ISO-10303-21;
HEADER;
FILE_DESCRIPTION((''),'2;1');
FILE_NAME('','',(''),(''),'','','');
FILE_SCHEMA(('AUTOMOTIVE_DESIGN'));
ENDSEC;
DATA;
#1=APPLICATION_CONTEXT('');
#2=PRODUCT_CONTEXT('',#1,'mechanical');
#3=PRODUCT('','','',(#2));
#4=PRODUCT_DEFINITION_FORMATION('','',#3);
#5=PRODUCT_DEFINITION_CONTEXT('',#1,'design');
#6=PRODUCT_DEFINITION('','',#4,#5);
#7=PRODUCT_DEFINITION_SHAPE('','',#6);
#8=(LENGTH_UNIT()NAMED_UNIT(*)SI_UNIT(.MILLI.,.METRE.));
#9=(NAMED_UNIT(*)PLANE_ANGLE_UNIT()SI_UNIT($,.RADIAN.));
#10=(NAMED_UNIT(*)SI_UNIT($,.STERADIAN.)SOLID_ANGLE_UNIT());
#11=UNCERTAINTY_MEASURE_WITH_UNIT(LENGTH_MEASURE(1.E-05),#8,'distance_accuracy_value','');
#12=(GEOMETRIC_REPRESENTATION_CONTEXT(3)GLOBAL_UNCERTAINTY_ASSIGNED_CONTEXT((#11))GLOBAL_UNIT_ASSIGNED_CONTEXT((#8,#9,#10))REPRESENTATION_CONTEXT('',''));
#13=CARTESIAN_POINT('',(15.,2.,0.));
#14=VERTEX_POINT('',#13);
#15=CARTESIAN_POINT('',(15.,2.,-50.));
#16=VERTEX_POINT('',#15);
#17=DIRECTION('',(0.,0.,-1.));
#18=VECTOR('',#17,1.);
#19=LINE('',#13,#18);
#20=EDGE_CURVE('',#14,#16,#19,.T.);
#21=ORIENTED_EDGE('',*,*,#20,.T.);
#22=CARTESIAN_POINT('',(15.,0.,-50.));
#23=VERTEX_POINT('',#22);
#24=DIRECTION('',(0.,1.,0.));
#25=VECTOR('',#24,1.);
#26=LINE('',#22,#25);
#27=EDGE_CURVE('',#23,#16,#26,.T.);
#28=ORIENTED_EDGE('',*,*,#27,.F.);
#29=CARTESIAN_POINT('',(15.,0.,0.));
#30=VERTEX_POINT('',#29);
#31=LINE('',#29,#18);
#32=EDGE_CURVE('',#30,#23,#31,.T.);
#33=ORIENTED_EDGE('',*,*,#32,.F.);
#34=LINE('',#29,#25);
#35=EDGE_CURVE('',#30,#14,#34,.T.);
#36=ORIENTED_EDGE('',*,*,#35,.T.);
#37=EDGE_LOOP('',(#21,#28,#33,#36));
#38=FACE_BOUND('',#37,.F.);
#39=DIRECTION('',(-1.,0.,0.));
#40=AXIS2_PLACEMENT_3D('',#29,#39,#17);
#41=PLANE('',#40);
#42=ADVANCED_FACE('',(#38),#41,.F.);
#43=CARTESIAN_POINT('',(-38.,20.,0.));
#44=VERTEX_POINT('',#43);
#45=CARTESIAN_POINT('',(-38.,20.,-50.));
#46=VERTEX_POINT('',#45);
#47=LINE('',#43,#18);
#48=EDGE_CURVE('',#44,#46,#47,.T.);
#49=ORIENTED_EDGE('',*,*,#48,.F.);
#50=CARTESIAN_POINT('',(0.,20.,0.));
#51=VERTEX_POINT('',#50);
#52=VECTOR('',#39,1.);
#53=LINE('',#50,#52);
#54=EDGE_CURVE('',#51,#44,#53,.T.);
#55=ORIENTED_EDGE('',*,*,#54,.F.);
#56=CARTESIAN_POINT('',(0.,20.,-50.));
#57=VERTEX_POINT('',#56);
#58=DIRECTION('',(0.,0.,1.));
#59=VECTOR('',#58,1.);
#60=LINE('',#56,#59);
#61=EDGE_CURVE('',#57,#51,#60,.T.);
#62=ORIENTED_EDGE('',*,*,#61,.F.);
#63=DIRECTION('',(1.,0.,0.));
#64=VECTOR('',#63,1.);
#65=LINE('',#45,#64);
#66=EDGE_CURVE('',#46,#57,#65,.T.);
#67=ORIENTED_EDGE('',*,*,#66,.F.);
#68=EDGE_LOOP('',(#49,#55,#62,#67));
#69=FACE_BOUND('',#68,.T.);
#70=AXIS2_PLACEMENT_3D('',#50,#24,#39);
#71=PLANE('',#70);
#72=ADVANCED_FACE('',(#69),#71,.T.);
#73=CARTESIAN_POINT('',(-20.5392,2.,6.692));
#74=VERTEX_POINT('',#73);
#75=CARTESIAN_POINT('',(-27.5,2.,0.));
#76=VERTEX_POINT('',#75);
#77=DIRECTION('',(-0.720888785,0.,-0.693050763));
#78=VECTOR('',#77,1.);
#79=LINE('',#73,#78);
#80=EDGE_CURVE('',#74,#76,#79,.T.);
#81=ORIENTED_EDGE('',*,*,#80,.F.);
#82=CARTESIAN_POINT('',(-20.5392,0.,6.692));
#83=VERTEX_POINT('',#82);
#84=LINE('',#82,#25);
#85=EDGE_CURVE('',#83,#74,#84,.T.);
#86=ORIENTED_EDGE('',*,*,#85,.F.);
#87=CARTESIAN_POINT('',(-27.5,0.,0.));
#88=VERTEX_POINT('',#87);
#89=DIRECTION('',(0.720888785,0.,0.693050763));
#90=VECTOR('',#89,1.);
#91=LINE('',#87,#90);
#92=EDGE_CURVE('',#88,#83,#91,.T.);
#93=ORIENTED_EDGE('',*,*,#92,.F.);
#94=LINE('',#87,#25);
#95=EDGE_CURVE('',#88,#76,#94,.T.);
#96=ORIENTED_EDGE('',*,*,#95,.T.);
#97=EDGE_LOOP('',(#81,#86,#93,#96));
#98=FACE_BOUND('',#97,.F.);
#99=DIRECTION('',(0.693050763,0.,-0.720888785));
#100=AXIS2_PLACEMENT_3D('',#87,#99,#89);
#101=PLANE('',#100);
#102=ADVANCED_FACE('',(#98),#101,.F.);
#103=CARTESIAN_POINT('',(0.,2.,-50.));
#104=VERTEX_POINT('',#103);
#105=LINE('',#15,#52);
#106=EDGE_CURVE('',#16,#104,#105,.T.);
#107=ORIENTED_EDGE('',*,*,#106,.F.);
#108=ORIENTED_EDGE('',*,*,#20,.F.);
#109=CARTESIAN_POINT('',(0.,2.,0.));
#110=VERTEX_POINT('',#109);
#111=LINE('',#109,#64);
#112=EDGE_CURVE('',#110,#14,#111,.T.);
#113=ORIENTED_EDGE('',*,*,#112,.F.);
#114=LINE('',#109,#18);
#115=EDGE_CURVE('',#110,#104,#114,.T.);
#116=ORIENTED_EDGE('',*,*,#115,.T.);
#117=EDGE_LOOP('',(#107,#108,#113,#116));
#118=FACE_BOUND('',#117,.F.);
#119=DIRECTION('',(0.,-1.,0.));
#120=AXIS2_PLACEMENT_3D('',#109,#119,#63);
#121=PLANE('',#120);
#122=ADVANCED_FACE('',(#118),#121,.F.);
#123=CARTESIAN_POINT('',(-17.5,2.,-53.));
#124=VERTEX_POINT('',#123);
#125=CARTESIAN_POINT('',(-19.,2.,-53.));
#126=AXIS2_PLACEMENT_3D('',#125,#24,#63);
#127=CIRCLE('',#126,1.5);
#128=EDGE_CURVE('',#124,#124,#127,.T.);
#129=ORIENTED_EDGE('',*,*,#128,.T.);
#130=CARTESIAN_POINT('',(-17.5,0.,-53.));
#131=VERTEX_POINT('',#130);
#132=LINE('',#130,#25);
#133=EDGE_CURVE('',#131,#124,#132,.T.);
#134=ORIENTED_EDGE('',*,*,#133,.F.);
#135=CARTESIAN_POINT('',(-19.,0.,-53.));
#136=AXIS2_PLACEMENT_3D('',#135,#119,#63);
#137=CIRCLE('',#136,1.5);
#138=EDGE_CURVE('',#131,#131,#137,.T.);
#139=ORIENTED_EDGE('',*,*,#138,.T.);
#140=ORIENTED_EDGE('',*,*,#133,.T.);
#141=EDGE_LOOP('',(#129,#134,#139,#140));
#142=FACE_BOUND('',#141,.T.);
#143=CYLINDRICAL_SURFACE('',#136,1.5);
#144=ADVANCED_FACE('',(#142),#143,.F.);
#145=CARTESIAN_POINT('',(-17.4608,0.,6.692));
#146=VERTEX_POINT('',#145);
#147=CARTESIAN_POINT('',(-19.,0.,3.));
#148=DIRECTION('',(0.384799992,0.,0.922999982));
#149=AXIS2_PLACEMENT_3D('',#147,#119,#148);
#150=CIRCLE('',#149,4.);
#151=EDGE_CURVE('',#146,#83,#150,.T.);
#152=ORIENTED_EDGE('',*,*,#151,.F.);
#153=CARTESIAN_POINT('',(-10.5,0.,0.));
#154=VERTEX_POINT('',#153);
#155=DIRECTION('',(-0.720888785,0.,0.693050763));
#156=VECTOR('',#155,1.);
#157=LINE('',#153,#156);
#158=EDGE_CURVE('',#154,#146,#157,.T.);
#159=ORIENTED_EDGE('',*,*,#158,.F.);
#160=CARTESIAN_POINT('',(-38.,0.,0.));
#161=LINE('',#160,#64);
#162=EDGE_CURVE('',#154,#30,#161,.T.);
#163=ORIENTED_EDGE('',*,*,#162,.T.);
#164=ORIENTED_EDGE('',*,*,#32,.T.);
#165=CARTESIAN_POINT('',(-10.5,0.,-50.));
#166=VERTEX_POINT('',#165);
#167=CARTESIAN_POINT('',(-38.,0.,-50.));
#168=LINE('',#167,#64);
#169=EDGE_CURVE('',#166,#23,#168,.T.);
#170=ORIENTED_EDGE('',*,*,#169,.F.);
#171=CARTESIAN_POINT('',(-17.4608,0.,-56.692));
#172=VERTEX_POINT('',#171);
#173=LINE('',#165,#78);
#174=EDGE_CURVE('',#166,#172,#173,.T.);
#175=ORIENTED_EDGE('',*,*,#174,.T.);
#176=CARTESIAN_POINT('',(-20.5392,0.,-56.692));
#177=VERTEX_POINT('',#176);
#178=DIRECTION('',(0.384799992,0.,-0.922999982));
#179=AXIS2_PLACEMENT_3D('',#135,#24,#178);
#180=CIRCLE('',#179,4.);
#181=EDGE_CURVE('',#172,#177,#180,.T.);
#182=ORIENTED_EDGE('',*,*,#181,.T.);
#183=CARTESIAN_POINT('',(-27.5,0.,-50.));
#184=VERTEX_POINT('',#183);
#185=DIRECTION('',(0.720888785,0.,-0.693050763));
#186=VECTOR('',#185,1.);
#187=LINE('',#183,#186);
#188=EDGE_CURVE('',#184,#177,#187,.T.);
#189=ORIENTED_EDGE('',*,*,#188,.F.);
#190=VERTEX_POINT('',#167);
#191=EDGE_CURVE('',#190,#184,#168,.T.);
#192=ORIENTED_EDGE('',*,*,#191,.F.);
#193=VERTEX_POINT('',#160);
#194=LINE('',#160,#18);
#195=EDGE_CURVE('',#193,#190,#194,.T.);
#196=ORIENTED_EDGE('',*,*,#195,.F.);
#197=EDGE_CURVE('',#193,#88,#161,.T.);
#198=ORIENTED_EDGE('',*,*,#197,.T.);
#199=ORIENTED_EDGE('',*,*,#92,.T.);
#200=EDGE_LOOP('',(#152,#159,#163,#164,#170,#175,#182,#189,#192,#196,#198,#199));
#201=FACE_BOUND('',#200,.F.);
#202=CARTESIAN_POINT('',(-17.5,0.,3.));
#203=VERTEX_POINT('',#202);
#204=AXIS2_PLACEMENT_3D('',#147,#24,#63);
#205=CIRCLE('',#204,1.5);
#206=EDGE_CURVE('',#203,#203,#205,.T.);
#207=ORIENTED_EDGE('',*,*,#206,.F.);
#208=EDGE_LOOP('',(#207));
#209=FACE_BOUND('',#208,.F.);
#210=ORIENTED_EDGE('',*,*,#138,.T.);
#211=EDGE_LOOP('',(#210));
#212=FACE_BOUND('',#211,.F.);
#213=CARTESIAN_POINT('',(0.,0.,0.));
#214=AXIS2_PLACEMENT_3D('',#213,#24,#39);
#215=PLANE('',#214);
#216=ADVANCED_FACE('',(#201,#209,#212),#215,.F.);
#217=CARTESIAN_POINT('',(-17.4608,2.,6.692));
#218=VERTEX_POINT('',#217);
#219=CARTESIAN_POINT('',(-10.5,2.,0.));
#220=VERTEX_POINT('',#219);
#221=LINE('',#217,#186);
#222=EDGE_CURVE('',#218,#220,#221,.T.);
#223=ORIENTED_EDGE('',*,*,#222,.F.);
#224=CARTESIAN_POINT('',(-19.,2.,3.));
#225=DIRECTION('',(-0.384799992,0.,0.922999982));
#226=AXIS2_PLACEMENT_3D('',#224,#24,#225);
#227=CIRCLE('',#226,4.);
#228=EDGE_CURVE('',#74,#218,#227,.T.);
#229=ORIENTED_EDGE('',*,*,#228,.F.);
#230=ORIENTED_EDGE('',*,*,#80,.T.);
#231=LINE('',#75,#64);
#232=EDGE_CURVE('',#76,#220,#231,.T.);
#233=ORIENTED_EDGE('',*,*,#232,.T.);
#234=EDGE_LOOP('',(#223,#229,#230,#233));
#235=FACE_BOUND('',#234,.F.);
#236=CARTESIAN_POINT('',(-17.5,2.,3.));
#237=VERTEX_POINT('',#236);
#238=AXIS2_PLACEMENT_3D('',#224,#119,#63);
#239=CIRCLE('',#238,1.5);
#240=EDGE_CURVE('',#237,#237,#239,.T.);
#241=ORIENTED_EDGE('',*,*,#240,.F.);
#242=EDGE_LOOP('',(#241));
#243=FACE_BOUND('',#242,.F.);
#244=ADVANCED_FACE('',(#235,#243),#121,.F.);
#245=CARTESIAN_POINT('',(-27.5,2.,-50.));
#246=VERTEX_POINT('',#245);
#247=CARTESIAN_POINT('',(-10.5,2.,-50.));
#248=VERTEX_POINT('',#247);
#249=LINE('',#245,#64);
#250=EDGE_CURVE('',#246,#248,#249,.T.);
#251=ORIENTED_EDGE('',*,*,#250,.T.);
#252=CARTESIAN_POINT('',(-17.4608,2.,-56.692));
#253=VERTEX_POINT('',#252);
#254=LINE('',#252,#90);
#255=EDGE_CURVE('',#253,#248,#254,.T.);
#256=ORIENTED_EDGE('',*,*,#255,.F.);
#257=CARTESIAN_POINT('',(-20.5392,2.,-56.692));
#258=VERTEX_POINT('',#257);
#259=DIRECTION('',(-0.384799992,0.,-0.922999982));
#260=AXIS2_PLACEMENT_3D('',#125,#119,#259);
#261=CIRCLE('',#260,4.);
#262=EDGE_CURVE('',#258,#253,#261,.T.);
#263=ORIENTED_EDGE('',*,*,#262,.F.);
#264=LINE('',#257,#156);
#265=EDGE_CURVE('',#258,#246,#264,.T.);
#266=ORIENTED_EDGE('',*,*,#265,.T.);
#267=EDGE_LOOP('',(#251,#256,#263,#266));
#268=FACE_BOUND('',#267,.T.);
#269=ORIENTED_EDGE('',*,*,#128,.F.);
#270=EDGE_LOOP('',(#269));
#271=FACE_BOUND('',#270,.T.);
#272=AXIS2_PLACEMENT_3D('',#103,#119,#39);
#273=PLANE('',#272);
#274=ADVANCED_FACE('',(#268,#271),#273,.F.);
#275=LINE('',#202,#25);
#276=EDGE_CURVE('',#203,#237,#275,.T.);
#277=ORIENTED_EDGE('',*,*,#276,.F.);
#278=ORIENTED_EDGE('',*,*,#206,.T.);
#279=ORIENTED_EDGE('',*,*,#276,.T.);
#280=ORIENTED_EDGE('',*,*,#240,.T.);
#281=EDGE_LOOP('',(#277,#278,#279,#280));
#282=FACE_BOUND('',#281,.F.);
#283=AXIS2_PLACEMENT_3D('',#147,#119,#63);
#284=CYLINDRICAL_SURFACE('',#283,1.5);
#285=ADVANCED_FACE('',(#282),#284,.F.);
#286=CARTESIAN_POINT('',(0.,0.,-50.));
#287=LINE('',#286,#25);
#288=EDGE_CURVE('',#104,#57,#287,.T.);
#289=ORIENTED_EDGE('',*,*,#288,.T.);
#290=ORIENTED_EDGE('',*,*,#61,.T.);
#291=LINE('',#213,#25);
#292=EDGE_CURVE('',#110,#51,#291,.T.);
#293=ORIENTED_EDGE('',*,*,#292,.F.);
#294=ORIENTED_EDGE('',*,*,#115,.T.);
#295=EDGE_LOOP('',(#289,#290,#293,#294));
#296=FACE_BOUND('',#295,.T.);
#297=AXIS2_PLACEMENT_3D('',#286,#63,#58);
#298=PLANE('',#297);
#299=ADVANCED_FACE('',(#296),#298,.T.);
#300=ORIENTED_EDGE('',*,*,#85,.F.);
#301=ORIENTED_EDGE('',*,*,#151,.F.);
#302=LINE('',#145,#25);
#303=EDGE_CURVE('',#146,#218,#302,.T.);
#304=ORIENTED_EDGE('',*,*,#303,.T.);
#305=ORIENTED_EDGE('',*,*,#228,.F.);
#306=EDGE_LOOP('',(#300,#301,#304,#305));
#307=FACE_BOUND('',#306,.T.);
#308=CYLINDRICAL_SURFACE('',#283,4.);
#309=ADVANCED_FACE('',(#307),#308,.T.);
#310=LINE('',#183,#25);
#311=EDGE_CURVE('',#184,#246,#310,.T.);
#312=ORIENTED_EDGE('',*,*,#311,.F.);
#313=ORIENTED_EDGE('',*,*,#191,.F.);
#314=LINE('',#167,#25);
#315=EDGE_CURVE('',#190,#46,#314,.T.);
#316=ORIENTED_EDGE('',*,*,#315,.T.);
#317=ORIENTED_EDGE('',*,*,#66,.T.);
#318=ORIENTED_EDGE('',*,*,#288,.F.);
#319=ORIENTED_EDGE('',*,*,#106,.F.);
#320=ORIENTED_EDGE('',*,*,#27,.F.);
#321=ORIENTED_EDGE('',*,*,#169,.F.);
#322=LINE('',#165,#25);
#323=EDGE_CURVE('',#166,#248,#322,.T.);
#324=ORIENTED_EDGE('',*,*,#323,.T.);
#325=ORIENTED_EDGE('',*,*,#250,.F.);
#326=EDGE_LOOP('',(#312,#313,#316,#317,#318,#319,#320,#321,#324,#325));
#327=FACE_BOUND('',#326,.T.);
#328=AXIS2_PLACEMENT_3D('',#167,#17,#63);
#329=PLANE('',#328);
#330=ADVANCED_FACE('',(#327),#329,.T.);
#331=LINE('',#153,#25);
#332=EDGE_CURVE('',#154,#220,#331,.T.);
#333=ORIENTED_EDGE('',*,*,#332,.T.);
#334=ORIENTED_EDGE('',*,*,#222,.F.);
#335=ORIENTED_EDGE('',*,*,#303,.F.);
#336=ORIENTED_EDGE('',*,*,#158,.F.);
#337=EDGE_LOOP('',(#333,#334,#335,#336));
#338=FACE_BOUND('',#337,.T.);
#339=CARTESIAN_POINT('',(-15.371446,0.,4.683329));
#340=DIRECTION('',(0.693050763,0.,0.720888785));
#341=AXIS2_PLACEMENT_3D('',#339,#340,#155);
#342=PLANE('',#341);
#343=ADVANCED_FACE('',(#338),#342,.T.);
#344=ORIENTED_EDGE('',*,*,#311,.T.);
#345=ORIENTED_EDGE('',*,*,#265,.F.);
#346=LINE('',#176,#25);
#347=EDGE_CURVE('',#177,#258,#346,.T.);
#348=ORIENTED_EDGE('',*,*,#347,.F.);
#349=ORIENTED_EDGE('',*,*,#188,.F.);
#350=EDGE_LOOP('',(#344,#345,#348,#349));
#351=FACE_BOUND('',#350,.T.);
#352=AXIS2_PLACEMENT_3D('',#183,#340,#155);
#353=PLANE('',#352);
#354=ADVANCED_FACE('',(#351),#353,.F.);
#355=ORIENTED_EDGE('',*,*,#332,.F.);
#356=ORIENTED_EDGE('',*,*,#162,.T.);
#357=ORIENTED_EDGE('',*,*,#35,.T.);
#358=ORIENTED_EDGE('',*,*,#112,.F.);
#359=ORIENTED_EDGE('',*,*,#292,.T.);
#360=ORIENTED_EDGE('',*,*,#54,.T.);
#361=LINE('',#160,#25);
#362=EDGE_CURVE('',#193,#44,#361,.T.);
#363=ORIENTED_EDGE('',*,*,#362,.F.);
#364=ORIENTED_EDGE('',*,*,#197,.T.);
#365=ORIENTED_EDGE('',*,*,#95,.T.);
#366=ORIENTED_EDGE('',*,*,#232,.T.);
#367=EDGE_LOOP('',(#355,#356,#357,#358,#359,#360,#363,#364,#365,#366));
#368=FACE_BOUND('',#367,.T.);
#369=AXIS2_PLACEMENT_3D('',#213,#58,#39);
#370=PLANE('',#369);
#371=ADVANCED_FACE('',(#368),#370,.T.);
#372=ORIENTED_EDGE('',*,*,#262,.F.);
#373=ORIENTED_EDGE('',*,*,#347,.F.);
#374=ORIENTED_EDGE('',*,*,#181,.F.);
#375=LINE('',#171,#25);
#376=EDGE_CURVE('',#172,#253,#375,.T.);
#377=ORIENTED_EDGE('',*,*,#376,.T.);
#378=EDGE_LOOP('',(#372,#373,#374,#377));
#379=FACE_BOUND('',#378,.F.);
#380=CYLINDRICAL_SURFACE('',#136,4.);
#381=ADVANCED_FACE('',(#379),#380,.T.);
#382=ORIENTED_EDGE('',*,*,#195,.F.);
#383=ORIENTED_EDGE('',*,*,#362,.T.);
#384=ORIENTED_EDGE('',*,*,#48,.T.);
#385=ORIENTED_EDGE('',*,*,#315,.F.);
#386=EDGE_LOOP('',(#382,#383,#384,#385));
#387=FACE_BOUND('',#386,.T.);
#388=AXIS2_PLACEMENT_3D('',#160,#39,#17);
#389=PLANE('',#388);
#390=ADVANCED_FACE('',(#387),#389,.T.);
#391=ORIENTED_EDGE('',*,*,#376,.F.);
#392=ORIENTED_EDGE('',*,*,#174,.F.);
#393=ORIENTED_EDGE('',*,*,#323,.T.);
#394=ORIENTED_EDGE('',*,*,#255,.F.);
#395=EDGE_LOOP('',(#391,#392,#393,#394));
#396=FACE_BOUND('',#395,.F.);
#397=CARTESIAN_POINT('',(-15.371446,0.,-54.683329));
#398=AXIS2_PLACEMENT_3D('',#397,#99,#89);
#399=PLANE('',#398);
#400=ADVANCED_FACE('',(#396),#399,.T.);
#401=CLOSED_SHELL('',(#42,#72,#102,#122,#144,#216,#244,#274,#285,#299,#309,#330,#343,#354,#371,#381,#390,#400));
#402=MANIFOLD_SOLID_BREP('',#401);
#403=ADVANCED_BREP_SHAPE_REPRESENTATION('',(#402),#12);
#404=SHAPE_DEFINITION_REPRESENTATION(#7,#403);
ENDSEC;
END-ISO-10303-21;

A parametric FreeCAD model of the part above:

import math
import FreeCAD as App
import Part
import Sketcher
from FreeCAD import Vector


def add_polygon(sketch, points):
    """Adds a closed chain of lines whose ends are joined by coincident constraints."""
    first, n = sketch.GeometryCount, len(points)
    for a, b in zip(points, points[1:] + points[:1]):
        sketch.addGeometry(Part.LineSegment(App.Vector(*a, 0), App.Vector(*b, 0)), False)
    for i in range(n):
        sketch.addConstraint(Sketcher.Constraint("Coincident", first + i, 2, first + (i + 1) % n, 1))

doc = App.newDocument("Part")
params = doc.addObject("Spreadsheet::Sheet", "Params")
for row, (alias, value) in enumerate([
    ("sketch1_width", "38 mm"),
    ("sketch1_height", "50 mm"),
    ("pad1_length", "20 mm"),
    ("sketch2_width", "15 mm"),
    ("sketch2_height", "50 mm"),
    ("pad2_length", "2 mm"),
    ("sketch3_diameter", "3 mm"),
    ("sketch3_radius", "4 mm"),
    ("pad3_length", "2 mm"),
], start=1):
    params.set(f"A{row}", alias)
    params.set(f"B{row}", "=" + value)
    params.setAlias(f"B{row}", alias)

body = doc.addObject("PartDesign::Body", "Body")

# Sketch on XZ plane
sketch1 = doc.addObject("Sketcher::SketchObject", "Sketch")
body.addObject(sketch1)
sketch1.AttachmentSupport = (doc.XZ_Plane, [""])
sketch1.MapMode = "FlatFace"
add_polygon(sketch1, [(-38, 0), (0, 0), (0, -50), (-38, -50)])  # lines 0-3
sketch1.addConstraint(Sketcher.Constraint("Horizontal", 0))
sketch1.addConstraint(Sketcher.Constraint("Vertical", 1))
sketch1.addConstraint(Sketcher.Constraint("Horizontal", 2))
sketch1.addConstraint(Sketcher.Constraint("Vertical", 3))
sketch1.addConstraint(Sketcher.Constraint("Coincident", 0, 2, -1, 1))
sketch1.addConstraint(Sketcher.Constraint("DistanceX", 0, 1, 0, 2, 38.0))
sketch1.addConstraint(Sketcher.Constraint("DistanceY", 1, 2, 1, 1, 50.0))
sketch1.setExpression("Constraints[9]", "Params.sketch1_width")
sketch1.setExpression("Constraints[10]", "Params.sketch1_height")
pad1 = doc.addObject("PartDesign::Pad", "Pad")
body.addObject(pad1)
pad1.Profile = sketch1
pad1.setExpression("Length", "Params.pad1_length")
pad1.Reversed = True

# Sketch on XZ plane
sketch2 = doc.addObject("Sketcher::SketchObject", "Sketch001")
body.addObject(sketch2)
sketch2.AttachmentSupport = (doc.XZ_Plane, [""])
sketch2.MapMode = "FlatFace"
add_polygon(sketch2, [(15, 0), (0, 0), (0, -50), (15, -50)])  # lines 0-3
sketch2.addConstraint(Sketcher.Constraint("Horizontal", 0))
sketch2.addConstraint(Sketcher.Constraint("Vertical", 1))
sketch2.addConstraint(Sketcher.Constraint("Horizontal", 2))
sketch2.addConstraint(Sketcher.Constraint("Vertical", 3))
sketch2.addConstraint(Sketcher.Constraint("Coincident", 0, 2, -1, 1))
sketch2.addConstraint(Sketcher.Constraint("DistanceX", 0, 2, 0, 1, 15.0))
sketch2.addConstraint(Sketcher.Constraint("DistanceY", 1, 2, 1, 1, 50.0))
sketch2.setExpression("Constraints[9]", "Params.sketch2_width")
sketch2.setExpression("Constraints[10]", "Params.sketch2_height")
pad2 = doc.addObject("PartDesign::Pad", "Pad001")
body.addObject(pad2)
pad2.Profile = sketch2
pad2.setExpression("Length", "Params.pad2_length")
pad2.Reversed = True

# Sketch on XZ plane
sketch3 = doc.addObject("Sketcher::SketchObject", "Sketch002")
body.addObject(sketch3)
sketch3.AttachmentSupport = (doc.XZ_Plane, [""])
sketch3.MapMode = "FlatFace"
sketch3.addGeometry(Part.LineSegment(Vector(-27.5, 0, 0), Vector(-10.5, 0, 0)), False)
sketch3.addGeometry(Part.LineSegment(Vector(-10.5, 0, 0), Vector(-17.4608, 6.692, 0)), False)
sketch3.addGeometry(Part.ArcOfCircle(Part.Circle(Vector(-19, 3, 0), Vector(0, 0, 1), 4), math.radians(67.368676), math.radians(112.631324)), False)
sketch3.addGeometry(Part.LineSegment(Vector(-20.5392, 6.692, 0), Vector(-27.5, 0, 0)), False)
sketch3.addGeometry(Part.Circle(Vector(-19, 3, 0), Vector(0, 0, 1), 1.5), False)
sketch3.addConstraint(Sketcher.Constraint("Coincident", 0, 2, 1, 1))
sketch3.addConstraint(Sketcher.Constraint("Coincident", 1, 2, 2, 1))
sketch3.addConstraint(Sketcher.Constraint("Coincident", 2, 2, 3, 1))
sketch3.addConstraint(Sketcher.Constraint("Coincident", 3, 2, 0, 1))
sketch3.addConstraint(Sketcher.Constraint("Horizontal", 0))
sketch3.addConstraint(Sketcher.Constraint("Coincident", 4, 3, 2, 3))
sketch3.addConstraint(Sketcher.Constraint("PointOnObject", 0, 2, -1))
sketch3.addConstraint(Sketcher.Constraint("Horizontal", 1, 2, 2, 2))
sketch3.addConstraint(Sketcher.Constraint("Equal", 1, 3))
sketch3.addConstraint(Sketcher.Constraint("Diameter", 4, 3.0))
sketch3.addConstraint(Sketcher.Constraint("Radius", 2, 4.0))
sketch3.addConstraint(Sketcher.Constraint("DistanceY", -1, 1, 2, 3, 3.0))
sketch3.addConstraint(Sketcher.Constraint("DistanceX", 2, 3, 0, 2, 8.5))
sketch3.addConstraint(Sketcher.Constraint("DistanceX", 2, 3, -1, 1, 19.0))
sketch3.addConstraint(Sketcher.Constraint("DistanceY", -1, 1, 1, 2, 6.692))
sketch3.setExpression("Constraints[9]", "Params.sketch3_diameter")
sketch3.setExpression("Constraints[10]", "Params.sketch3_radius")
pad3 = doc.addObject("PartDesign::Pad", "Pad002")
body.addObject(pad3)
pad3.Profile = sketch3
pad3.setExpression("Length", "Params.pad3_length")
pad3.Reversed = True
doc.recompute()

datumplane = doc.addObject("PartDesign::Plane", "DatumPlane")
body.addObject(datumplane)
datumplane.AttachmentSupport = (doc.XY_Plane, [""])
datumplane.MapMode = "FlatFace"
datumplane.AttachmentOffset = App.Placement(Vector(0, 0, -25), App.Rotation())
mirrored = doc.addObject("PartDesign::Mirrored", "Mirrored")
body.addObject(mirrored)
mirrored.Originals = [pad3]
mirrored.MirrorPlane = (datumplane, [""])
body.Tip = mirrored

doc.recompute()
